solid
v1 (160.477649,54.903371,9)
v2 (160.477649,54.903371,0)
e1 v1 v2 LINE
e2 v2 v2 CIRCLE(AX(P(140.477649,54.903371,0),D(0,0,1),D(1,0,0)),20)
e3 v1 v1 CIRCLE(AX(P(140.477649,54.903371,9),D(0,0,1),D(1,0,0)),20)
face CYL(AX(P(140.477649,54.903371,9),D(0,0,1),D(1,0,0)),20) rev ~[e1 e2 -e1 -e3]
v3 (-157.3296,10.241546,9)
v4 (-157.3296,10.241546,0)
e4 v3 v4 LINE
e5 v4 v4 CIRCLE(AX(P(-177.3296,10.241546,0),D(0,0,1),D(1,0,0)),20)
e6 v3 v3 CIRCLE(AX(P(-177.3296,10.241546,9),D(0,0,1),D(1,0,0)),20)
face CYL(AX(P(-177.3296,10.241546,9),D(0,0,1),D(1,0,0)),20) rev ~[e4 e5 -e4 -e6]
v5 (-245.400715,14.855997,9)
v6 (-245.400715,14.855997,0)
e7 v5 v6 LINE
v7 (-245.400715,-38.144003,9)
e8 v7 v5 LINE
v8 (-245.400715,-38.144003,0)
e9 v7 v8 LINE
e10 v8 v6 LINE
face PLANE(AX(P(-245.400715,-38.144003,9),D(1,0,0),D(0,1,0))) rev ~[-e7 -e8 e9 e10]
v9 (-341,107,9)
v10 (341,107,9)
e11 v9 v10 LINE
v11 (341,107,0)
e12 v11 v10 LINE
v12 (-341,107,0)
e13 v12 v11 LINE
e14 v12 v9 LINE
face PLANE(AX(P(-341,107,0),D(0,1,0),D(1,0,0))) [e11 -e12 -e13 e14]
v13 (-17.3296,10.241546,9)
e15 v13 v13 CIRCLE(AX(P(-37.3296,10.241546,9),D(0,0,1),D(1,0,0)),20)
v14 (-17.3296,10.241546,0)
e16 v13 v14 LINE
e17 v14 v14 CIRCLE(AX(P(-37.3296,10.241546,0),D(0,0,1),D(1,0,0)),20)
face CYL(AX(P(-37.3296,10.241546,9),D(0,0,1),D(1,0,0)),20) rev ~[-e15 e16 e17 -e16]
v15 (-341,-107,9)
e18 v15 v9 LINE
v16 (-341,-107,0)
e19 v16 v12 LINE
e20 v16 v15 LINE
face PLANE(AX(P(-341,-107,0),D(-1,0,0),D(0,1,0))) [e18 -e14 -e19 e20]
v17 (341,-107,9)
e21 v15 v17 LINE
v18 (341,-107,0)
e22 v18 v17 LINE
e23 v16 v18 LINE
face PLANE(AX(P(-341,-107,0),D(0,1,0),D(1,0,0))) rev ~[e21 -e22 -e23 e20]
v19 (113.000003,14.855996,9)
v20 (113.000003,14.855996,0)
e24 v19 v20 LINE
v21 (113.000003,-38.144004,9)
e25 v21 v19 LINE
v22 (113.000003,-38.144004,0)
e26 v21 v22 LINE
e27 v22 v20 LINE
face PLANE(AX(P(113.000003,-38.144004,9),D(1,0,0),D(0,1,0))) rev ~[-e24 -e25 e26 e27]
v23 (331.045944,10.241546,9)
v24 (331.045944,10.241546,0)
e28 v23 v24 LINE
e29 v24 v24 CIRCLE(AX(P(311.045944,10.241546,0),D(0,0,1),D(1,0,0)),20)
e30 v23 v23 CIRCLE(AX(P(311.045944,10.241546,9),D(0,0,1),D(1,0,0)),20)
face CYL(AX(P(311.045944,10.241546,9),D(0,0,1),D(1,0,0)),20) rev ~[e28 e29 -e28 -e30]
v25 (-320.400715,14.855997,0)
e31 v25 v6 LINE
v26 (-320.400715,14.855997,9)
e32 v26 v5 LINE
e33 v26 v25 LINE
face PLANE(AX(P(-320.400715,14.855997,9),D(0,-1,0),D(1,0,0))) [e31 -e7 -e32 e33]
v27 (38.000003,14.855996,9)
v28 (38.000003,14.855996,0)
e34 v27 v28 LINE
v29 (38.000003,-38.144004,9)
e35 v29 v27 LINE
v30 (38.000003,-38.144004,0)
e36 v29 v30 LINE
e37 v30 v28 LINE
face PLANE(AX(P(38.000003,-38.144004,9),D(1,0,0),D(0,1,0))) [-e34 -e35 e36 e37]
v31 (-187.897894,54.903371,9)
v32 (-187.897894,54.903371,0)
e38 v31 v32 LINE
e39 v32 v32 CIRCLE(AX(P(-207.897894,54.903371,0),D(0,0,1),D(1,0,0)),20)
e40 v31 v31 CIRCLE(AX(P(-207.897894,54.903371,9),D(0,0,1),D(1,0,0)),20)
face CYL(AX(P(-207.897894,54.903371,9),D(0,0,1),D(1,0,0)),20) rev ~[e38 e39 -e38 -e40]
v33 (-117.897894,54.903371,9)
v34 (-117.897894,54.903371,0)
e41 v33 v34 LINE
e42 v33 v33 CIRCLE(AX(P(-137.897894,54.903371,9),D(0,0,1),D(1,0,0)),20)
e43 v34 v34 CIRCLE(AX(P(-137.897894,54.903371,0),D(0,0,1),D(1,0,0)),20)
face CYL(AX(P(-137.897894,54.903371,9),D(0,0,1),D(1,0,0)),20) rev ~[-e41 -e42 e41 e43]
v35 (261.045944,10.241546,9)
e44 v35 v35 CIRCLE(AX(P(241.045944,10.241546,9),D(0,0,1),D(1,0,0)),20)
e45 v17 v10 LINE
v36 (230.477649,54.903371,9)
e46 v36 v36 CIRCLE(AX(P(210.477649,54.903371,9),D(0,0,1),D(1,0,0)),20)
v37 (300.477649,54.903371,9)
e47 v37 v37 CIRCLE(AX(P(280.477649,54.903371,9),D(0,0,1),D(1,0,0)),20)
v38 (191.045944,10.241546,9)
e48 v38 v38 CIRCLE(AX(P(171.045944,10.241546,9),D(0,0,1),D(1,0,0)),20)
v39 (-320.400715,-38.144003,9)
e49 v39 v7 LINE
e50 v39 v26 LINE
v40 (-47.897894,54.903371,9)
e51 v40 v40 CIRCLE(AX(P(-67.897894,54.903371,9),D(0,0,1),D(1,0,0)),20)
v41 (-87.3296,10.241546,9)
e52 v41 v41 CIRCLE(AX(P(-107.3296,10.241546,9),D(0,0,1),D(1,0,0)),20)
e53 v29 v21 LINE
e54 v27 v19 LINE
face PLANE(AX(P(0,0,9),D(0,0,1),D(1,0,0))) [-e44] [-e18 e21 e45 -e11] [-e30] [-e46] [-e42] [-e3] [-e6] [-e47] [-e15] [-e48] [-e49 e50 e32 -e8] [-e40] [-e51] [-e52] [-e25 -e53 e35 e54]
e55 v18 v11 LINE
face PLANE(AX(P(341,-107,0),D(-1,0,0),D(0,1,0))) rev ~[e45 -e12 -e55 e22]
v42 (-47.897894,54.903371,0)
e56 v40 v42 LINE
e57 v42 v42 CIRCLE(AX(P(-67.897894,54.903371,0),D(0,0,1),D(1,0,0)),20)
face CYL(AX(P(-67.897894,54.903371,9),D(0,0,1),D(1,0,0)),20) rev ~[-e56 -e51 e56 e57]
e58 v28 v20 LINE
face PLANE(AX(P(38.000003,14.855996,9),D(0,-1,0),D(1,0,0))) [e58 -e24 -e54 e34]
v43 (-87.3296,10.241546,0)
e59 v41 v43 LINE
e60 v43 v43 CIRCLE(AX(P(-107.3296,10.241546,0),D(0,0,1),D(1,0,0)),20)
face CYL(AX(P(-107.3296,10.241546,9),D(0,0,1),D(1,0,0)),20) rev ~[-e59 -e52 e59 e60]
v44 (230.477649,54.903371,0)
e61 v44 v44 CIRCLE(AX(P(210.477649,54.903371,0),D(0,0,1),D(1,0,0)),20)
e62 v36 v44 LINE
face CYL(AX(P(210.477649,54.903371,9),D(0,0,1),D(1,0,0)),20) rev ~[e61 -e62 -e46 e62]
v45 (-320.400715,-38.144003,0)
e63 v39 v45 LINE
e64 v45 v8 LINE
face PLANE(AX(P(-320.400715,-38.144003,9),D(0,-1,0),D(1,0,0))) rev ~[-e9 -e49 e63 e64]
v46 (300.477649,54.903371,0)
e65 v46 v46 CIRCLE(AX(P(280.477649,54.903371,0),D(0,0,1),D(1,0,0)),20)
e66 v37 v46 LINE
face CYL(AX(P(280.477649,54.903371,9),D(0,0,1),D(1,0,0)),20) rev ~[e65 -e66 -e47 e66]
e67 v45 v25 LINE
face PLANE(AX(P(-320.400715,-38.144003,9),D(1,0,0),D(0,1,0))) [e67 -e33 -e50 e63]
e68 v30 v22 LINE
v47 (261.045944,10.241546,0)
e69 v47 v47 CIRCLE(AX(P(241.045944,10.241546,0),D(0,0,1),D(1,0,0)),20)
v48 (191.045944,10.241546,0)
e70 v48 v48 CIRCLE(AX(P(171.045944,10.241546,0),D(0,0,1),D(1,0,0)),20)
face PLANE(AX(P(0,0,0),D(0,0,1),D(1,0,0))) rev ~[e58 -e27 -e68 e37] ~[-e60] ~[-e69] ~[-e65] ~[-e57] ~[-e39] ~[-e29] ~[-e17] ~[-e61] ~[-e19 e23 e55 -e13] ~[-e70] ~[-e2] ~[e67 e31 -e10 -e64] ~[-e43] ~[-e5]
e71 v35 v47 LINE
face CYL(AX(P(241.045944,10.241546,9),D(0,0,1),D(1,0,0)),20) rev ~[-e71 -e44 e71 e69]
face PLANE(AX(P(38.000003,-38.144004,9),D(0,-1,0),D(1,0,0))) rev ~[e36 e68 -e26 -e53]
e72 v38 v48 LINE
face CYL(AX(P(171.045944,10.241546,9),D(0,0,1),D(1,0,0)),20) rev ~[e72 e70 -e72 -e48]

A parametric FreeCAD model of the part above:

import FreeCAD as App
import Part
import Sketcher

V = App.Vector
Q = App.Units.Quantity

doc = App.newDocument("Part")
body = doc.addObject("PartDesign::Body", "Body")

# Sketch on XY plane
sketch1 = body.newObject("Sketcher::SketchObject", "Sketch")
sketch1.AttachmentSupport = (doc.getObject("XY_Plane"), [""])
sketch1.MapMode = "FlatFace"
sketch1.addGeometry([
    Part.LineSegment(V(-341, 107, 0), V(-341, -107, 0)),
    Part.LineSegment(V(-341, -107, 0), V(341, -107, 0)),
    Part.LineSegment(V(341, -107, 0), V(341, 107, 0)),
    Part.LineSegment(V(341, 107, 0), V(-341, 107, 0)),
], False)
sketch1.addConstraint([
    Sketcher.Constraint("Coincident", 0, 2, 1, 1),
    Sketcher.Constraint("Coincident", 1, 2, 2, 1),
    Sketcher.Constraint("Coincident", 2, 2, 3, 1),
    Sketcher.Constraint("Coincident", 3, 2, 0, 1),
    Sketcher.Constraint("Vertical", 0),
    Sketcher.Constraint("Horizontal", 1),
    Sketcher.Constraint("Vertical", 2),
    Sketcher.Constraint("Horizontal", 3),
    Sketcher.Constraint("Symmetric", 0, 2, 2, 2, -1, 1),
    Sketcher.Constraint("DistanceX", 1, 1, 1, 2, Q("682 mm")),
    Sketcher.Constraint("DistanceY", 0, 2, 0, 1, Q("214 mm")),
])
pad1 = body.newObject("PartDesign::Pad", "Pad")
pad1.Profile = sketch1
pad1.Length = 9

# Sketch on XY plane
sketch2 = body.newObject("Sketcher::SketchObject", "Sketch001")
sketch2.AttachmentSupport = (doc.getObject("XY_Plane"), [""])
sketch2.MapMode = "FlatFace"
sketch2.AttachmentOffset = App.Placement(V(0, 0, 9), App.Rotation())
sketch2.addGeometry([
    Part.Circle(V(-208, 55, 0), V(0, 0, 1), 20),  # 0
    Part.Circle(V(-138, 55, 0), V(0, 0, 1), 20),  # 1
    Part.Circle(V(-68, 55, 0), V(0, 0, 1), 20),  # 2
    Part.LineSegment(V(-320, 15, 0), V(-320, -38, 0)),  # 3
    Part.LineSegment(V(-320, -38, 0), V(-245, -38, 0)),  # 4
    Part.LineSegment(V(-245, -38, 0), V(-245, 15, 0)),  # 5
    Part.LineSegment(V(-245, 15, 0), V(-320, 15, 0)),  # 6
    Part.Circle(V(-177, 10, 0), V(0, 0, 1), 20),  # 7
    Part.Circle(V(-107, 10, 0), V(0, 0, 1), 20),  # 8
    Part.Circle(V(-37, 10, 0), V(0, 0, 1), 20),  # 9
    Part.Circle(V(140, 55, 0), V(0, 0, 1), 20),  # 10
    Part.Circle(V(210, 55, 0), V(0, 0, 1), 20),  # 11
    Part.Circle(V(280, 55, 0), V(0, 0, 1), 20),  # 12
    Part.Circle(V(171, 10, 0), V(0, 0, 1), 20),  # 13
    Part.Circle(V(241, 10, 0), V(0, 0, 1), 20),  # 14
    Part.Circle(V(311, 10, 0), V(0, 0, 1), 20),  # 15
    Part.LineSegment(V(38, 15, 0), V(38, -38, 0)),  # 16
    Part.LineSegment(V(38, -38, 0), V(113, -38, 0)),  # 17
    Part.LineSegment(V(113, -38, 0), V(113, 15, 0)),  # 18
    Part.LineSegment(V(113, 15, 0), V(38, 15, 0)),  # 19
], False)
sketch2.addConstraint([
    Sketcher.Constraint("Coincident", 3, 2, 4, 1),
    Sketcher.Constraint("Coincident", 4, 2, 5, 1),
    Sketcher.Constraint("Coincident", 5, 2, 6, 1),
    Sketcher.Constraint("Coincident", 6, 2, 3, 1),
    Sketcher.Constraint("Coincident", 16, 2, 17, 1),
    Sketcher.Constraint("Coincident", 17, 2, 18, 1),
    Sketcher.Constraint("Coincident", 18, 2, 19, 1),
    Sketcher.Constraint("Coincident", 19, 2, 16, 1),
    Sketcher.Constraint("Vertical", 3),
    Sketcher.Constraint("Horizontal", 4),
    Sketcher.Constraint("Vertical", 5),
    Sketcher.Constraint("Horizontal", 6),
    Sketcher.Constraint("Vertical", 16),
    Sketcher.Constraint("Horizontal", 17),
    Sketcher.Constraint("Vertical", 18),
    Sketcher.Constraint("Horizontal", 19),
    Sketcher.Constraint("Equal", 0, 1),
    Sketcher.Constraint("Equal", 1, 2),
    Sketcher.Constraint("Equal", 2, 7),
    Sketcher.Constraint("Equal", 7, 8),
    Sketcher.Constraint("Equal", 8, 9),
    Sketcher.Constraint("Equal", 9, 10),
    Sketcher.Constraint("Equal", 10, 11),
    Sketcher.Constraint("Equal", 11, 12),
    Sketcher.Constraint("Equal", 12, 13),
    Sketcher.Constraint("Equal", 13, 14),
    Sketcher.Constraint("Equal", 14, 15),
    Sketcher.Constraint("Horizontal", 0, 3, 1, 3),
    Sketcher.Constraint("Horizontal", 1, 3, 2, 3),
    Sketcher.Constraint("Horizontal", 7, 3, 8, 3),
    Sketcher.Constraint("Horizontal", 8, 3, 9, 3),
    Sketcher.Constraint("Horizontal", 2, 3, 10, 3),
    Sketcher.Constraint("Horizontal", 10, 3, 11, 3),
    Sketcher.Constraint("Horizontal", 11, 3, 12, 3),
    Sketcher.Constraint("Horizontal", 9, 3, 13, 3),
    Sketcher.Constraint("Horizontal", 13, 3, 14, 3),
    Sketcher.Constraint("Horizontal", 14, 3, 15, 3),
    Sketcher.Constraint("Horizontal", 4, 2, 16, 2),
    Sketcher.Constraint("Horizontal", 6, 2, 18, 2),
    Sketcher.Constraint("Equal", 6, 17),
    Sketcher.Constraint("Diameter", 0, Q("40 mm")),
    Sketcher.Constraint("DistanceX", 4, 1, 4, 2, Q("75 mm")),
    Sketcher.Constraint("DistanceY", 3, 2, 3, 1, Q("53 mm")),
    Sketcher.Constraint("DistanceX", 0, 3, 1, 3, Q("70 mm")),
    Sketcher.Constraint("DistanceX", 1, 3, 2, 3, Q("70 mm")),
    Sketcher.Constraint("DistanceX", 7, 3, 8, 3, Q("70 mm")),
    Sketcher.Constraint("DistanceX", 8, 3, 9, 3, Q("70 mm")),
    Sketcher.Constraint("DistanceX", 10, 3, 11, 3, Q("70 mm")),
    Sketcher.Constraint("DistanceX", 11, 3, 12, 3, Q("70 mm")),
    Sketcher.Constraint("DistanceX", 13, 3, 14, 3, Q("70 mm")),
    Sketcher.Constraint("DistanceX", 14, 3, 15, 3, Q("70 mm")),
    Sketcher.Constraint("DistanceX", 7, 3, -1, 1, Q("177.3296 mm")),
    Sketcher.Constraint("DistanceY", -1, 1, 0, 3, Q("54.903371 mm")),
    Sketcher.Constraint("DistanceX", -1, 1, 10, 3, Q("140.477649 mm")),
    Sketcher.Constraint("DistanceX", 3, 2, 0, 3, Q("112.502821 mm")),
    Sketcher.Constraint("DistanceY", 3, 2, 7, 3, Q("48.385549 mm")),
    Sketcher.Constraint("DistanceX", 16, 2, 13, 3, Q("133.045941 mm")),
    Sketcher.Constraint("DistanceX", 0, 3, -1, 1, Q("207.897894 mm")),
    Sketcher.Constraint("DistanceY", -1, 1, 7, 3, Q("10.241546 mm")),
    Sketcher.Constraint("DistanceX", -1, 1, 13, 3, Q("171.045944 mm")),
])
pocket1 = body.newObject("PartDesign::Pocket", "Pocket")
pocket1.Profile = sketch2
pocket1.Length = 25

doc.recompute()
